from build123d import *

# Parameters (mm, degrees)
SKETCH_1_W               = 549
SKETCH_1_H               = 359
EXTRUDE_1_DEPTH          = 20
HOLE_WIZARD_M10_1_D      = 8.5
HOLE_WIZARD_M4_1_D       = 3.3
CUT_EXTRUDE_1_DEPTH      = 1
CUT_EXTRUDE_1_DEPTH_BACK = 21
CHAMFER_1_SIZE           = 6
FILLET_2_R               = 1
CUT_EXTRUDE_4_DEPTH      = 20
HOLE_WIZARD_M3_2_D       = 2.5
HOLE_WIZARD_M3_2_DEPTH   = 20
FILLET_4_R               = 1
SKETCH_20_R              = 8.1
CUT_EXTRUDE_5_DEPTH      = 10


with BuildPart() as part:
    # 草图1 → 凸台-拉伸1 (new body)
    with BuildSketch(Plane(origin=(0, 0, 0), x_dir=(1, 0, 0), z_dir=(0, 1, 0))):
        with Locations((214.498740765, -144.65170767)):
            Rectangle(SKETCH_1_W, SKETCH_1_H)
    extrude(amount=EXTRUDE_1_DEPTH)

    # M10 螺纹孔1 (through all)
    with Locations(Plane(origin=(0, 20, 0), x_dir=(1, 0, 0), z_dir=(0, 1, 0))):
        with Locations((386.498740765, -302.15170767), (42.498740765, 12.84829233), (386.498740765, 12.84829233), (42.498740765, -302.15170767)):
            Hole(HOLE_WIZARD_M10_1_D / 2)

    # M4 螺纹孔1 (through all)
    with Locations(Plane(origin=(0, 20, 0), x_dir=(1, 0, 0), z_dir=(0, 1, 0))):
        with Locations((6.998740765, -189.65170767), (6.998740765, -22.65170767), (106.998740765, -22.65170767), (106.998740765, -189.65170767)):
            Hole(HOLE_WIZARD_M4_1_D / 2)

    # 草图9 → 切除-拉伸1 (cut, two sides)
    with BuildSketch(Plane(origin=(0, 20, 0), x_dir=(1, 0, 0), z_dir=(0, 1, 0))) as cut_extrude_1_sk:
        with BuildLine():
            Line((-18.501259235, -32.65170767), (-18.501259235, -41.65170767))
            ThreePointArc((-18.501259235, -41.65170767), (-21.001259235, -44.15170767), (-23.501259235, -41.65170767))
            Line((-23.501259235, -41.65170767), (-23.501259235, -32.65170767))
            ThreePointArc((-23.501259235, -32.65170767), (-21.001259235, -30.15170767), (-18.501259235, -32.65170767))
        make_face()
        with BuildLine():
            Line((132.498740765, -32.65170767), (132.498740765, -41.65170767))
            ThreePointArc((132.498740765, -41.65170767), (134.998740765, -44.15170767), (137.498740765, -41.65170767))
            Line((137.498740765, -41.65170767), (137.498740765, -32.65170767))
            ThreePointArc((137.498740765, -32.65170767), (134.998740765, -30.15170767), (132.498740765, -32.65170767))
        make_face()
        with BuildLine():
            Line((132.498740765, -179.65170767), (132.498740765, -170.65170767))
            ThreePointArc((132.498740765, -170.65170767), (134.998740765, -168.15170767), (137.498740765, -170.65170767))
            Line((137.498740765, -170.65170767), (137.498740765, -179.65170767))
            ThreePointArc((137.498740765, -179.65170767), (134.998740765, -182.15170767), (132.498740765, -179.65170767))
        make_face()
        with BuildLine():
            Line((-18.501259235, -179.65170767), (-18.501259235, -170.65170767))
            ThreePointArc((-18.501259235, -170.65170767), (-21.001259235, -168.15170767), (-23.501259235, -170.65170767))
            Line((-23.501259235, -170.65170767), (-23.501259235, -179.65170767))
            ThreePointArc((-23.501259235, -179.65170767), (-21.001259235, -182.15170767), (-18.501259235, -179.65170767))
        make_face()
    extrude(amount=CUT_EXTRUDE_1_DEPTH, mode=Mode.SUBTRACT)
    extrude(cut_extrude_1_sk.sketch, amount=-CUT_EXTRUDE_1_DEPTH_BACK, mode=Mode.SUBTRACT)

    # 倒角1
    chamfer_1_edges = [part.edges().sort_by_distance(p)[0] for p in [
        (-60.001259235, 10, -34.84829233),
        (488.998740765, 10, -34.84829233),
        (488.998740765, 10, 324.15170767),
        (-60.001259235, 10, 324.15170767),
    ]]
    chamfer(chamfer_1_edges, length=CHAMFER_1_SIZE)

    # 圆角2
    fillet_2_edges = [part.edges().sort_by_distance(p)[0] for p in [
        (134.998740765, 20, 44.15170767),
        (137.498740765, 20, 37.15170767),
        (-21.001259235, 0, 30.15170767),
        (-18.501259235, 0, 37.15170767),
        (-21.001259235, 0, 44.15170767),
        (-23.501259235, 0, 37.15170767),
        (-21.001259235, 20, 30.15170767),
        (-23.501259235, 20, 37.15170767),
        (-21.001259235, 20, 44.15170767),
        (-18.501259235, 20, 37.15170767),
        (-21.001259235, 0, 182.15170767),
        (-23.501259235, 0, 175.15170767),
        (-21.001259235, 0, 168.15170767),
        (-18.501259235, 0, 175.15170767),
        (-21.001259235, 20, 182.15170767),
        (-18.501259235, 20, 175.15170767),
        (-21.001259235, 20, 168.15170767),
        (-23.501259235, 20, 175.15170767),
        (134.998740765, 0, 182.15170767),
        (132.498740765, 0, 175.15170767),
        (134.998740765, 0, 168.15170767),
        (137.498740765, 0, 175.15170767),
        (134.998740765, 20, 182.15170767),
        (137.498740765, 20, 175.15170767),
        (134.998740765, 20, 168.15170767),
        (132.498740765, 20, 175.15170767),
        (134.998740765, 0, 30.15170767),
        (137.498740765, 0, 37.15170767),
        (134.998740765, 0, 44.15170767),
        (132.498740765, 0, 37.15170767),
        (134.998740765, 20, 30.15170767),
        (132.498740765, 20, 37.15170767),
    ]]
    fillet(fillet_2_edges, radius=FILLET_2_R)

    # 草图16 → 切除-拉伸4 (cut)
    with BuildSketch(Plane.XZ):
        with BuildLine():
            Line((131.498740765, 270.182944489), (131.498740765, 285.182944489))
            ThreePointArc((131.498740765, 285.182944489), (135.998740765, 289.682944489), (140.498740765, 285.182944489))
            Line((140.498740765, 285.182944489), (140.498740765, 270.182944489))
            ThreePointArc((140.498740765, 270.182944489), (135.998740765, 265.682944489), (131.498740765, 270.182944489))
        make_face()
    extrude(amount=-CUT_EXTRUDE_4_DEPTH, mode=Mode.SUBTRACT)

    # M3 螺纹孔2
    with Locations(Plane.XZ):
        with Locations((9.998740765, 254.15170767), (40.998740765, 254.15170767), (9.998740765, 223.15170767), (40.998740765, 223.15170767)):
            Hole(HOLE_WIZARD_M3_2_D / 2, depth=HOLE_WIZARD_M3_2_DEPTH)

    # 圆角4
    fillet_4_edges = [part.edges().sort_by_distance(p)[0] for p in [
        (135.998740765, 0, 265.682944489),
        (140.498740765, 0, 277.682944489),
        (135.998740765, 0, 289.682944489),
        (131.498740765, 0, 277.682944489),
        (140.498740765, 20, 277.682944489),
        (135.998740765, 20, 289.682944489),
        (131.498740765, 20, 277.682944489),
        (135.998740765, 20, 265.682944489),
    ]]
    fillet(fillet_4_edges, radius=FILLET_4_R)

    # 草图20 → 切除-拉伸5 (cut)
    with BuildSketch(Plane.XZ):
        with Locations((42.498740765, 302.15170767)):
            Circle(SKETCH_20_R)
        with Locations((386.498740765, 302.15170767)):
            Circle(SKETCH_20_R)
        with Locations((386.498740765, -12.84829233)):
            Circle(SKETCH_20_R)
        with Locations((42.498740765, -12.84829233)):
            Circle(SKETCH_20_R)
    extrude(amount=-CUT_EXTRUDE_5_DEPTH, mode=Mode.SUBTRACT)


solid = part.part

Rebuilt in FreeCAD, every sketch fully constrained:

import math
import FreeCAD as App
import Part
import Sketcher

V = App.Vector


def edges_at(feature, points):
    """Names of the edges that pass closest to the given points."""
    edges = feature.Shape.Edges
    near = lambda p: min(range(len(edges)), key=lambda i: edges[i].distToShape(Part.Vertex(*p))[0])
    return sorted({f"Edge{near(p) + 1}" for p in points})

doc = App.newDocument("Part")
params = doc.addObject("Spreadsheet::Sheet", "Params")
for row, (alias, value) in enumerate([
    ("sketch1_width", "549 mm"),
    ("sketch1_height", "359 mm"),
    ("pad1_length", "20 mm"),
    ("sketch2_diameter", "8.5 mm"),
    ("hole_diameter", "8.5 mm"),
    ("sketch3_diameter", "3.3 mm"),
    ("hole2_diameter", "3.3 mm"),
    ("sketch4_radius", "2.5 mm"),
    ("sketch4_height", "9 mm"),
    ("chamfer_size", "6 mm"),
    ("fillet_radius", "1 mm"),
    ("sketch5_radius", "4.5 mm"),
    ("sketch5_height", "15 mm"),
    ("pocket2_length", "20 mm"),
    ("sketch6_diameter", "2.5 mm"),
    ("hole3_diameter", "2.5 mm"),
    ("hole3_depth", "20 mm"),
    ("fillet2_radius", "1 mm"),
    ("sketch7_diameter", "16.2 mm"),
    ("pocket3_length", "10 mm"),
], start=1):
    params.set(f"A{row}", alias)
    params.set(f"B{row}", "=" + value)
    params.setAlias(f"B{row}", alias)

body = doc.addObject("PartDesign::Body", "Body")

sketch1 = doc.addObject("Sketcher::SketchObject", "Sketch")
body.addObject(sketch1)
sketch1.AttachmentSupport = (doc.XZ_Plane, [""])
sketch1.MapMode = "FlatFace"
sketch1.addGeometry(Part.LineSegment(V(-60, -35, 0), V(-60, 324, 0)), False)
sketch1.addGeometry(Part.LineSegment(V(-60, 324, 0), V(489, 324, 0)), False)
sketch1.addGeometry(Part.LineSegment(V(489, 324, 0), V(489, -35, 0)), False)
sketch1.addGeometry(Part.LineSegment(V(489, -35, 0), V(-60, -35, 0)), False)
sketch1.addConstraint(Sketcher.Constraint("Coincident", 0, 2, 1, 1))
sketch1.addConstraint(Sketcher.Constraint("Coincident", 1, 2, 2, 1))
sketch1.addConstraint(Sketcher.Constraint("Coincident", 2, 2, 3, 1))
sketch1.addConstraint(Sketcher.Constraint("Coincident", 3, 2, 0, 1))
sketch1.addConstraint(Sketcher.Constraint("Vertical", 0))
sketch1.addConstraint(Sketcher.Constraint("Horizontal", 1))
sketch1.addConstraint(Sketcher.Constraint("Vertical", 2))
sketch1.addConstraint(Sketcher.Constraint("Horizontal", 3))
sketch1.addConstraint(Sketcher.Constraint("DistanceX", 1, 1, 1, 2, 549.0))
sketch1.addConstraint(Sketcher.Constraint("DistanceY", 0, 1, 0, 2, 359.0))
sketch1.addConstraint(Sketcher.Constraint("DistanceX", 0, 2, -1, 1, 60.001259))
sketch1.addConstraint(Sketcher.Constraint("DistanceY", -1, 1, 0, 2, 324.151708))
sketch1.setExpression("Constraints[8]", "Params.sketch1_width")
sketch1.setExpression("Constraints[9]", "Params.sketch1_height")
pad1 = doc.addObject("PartDesign::Pad", "Pad")
body.addObject(pad1)
pad1.Profile = sketch1
pad1.setExpression("Length", "Params.pad1_length")
pad1.Reversed = True

sketch2 = doc.addObject("Sketcher::SketchObject", "Sketch001")
body.addObject(sketch2)
sketch2.AttachmentSupport = (doc.XZ_Plane, [""])
sketch2.MapMode = "FlatFace"
sketch2.AttachmentOffset = App.Placement(V(0, 0, -20), App.Rotation())
sketch2.addGeometry(Part.Circle(V(386.5, 302.2, 0), V(0, 0, 1), 4.2), False)
sketch2.addGeometry(Part.Circle(V(42.5, -12.8, 0), V(0, 0, 1), 4.2), False)
sketch2.addGeometry(Part.Circle(V(386.5, -12.8, 0), V(0, 0, 1), 4.2), False)
sketch2.addGeometry(Part.Circle(V(42.5, 302.2, 0), V(0, 0, 1), 4.2), False)
sketch2.addConstraint(Sketcher.Constraint("Equal", 0, 1))
sketch2.addConstraint(Sketcher.Constraint("Equal", 1, 2))
sketch2.addConstraint(Sketcher.Constraint("Equal", 2, 3))
sketch2.addConstraint(Sketcher.Constraint("Horizontal", 1, 3, 2, 3))
sketch2.addConstraint(Sketcher.Constraint("Horizontal", 0, 3, 3, 3))
sketch2.addConstraint(Sketcher.Constraint("Vertical", 0, 3, 2, 3))
sketch2.addConstraint(Sketcher.Constraint("Vertical", 1, 3, 3, 3))
sketch2.addConstraint(Sketcher.Constraint("Diameter", 0, 8.5))
sketch2.addConstraint(Sketcher.Constraint("DistanceX", 1, 3, 0, 3, 344.0))
sketch2.addConstraint(Sketcher.Constraint("DistanceY", 1, 3, 0, 3, 315.0))
sketch2.addConstraint(Sketcher.Constraint("DistanceX", -1, 1, 0, 3, 386.498741))
sketch2.addConstraint(Sketcher.Constraint("DistanceY", -1, 1, 0, 3, 302.151708))
sketch2.setExpression("Constraints[7]", "Params.sketch2_diameter")
doc.recompute()
hole = doc.addObject("PartDesign::Hole", "Hole")
body.addObject(hole)
hole.Profile = sketch2
hole.ThreadType = "None"
hole.setExpression("Diameter", "Params.hole_diameter")
hole.DepthType = "ThroughAll"
hole.Reversed = True

sketch3 = doc.addObject("Sketcher::SketchObject", "Sketch002")
body.addObject(sketch3)
sketch3.AttachmentSupport = (doc.XZ_Plane, [""])
sketch3.MapMode = "FlatFace"
sketch3.AttachmentOffset = App.Placement(V(0, 0, -20), App.Rotation())
sketch3.addGeometry(Part.Circle(V(7, 189.7, 0), V(0, 0, 1), 1.6), False)
sketch3.addGeometry(Part.Circle(V(7, 22.7, 0), V(0, 0, 1), 1.6), False)
sketch3.addGeometry(Part.Circle(V(107, 22.7, 0), V(0, 0, 1), 1.6), False)
sketch3.addGeometry(Part.Circle(V(107, 189.7, 0), V(0, 0, 1), 1.6), False)
sketch3.addConstraint(Sketcher.Constraint("Equal", 0, 1))
sketch3.addConstraint(Sketcher.Constraint("Equal", 1, 2))
sketch3.addConstraint(Sketcher.Constraint("Equal", 2, 3))
sketch3.addConstraint(Sketcher.Constraint("Horizontal", 1, 3, 2, 3))
sketch3.addConstraint(Sketcher.Constraint("Horizontal", 0, 3, 3, 3))
sketch3.addConstraint(Sketcher.Constraint("Vertical", 0, 3, 1, 3))
sketch3.addConstraint(Sketcher.Constraint("Vertical", 2, 3, 3, 3))
sketch3.addConstraint(Sketcher.Constraint("Diameter", 0, 3.3))
sketch3.addConstraint(Sketcher.Constraint("DistanceY", 1, 3, 0, 3, 167.0))
sketch3.addConstraint(Sketcher.Constraint("DistanceX", 1, 3, 2, 3, 100.0))
sketch3.addConstraint(Sketcher.Constraint("DistanceX", -1, 1, 0, 3, 6.998741))
sketch3.addConstraint(Sketcher.Constraint("DistanceY", -1, 1, 0, 3, 189.651708))
sketch3.setExpression("Constraints[7]", "Params.sketch3_diameter")
doc.recompute()
hole2 = doc.addObject("PartDesign::Hole", "Hole001")
body.addObject(hole2)
hole2.Profile = sketch3
hole2.ThreadType = "None"
hole2.setExpression("Diameter", "Params.hole2_diameter")
hole2.DepthType = "ThroughAll"
hole2.Reversed = True

sketch4 = doc.addObject("Sketcher::SketchObject", "Sketch003")
body.addObject(sketch4)
sketch4.AttachmentSupport = (doc.XZ_Plane, [""])
sketch4.MapMode = "FlatFace"
sketch4.AttachmentOffset = App.Placement(V(0, 0, -20), App.Rotation())
sketch4.addGeometry(Part.LineSegment(V(-18.5, 41.7, 0), V(-18.5, 32.7, 0)), False)
sketch4.addGeometry(Part.ArcOfCircle(Part.Circle(V(-21, 32.7, 0), V(0, 0, 1), 2.5), math.radians(180), math.radians(360)), False)
sketch4.addGeometry(Part.LineSegment(V(-23.5, 32.7, 0), V(-23.5, 41.7, 0)), False)
sketch4.addGeometry(Part.ArcOfCircle(Part.Circle(V(-21, 41.7, 0), V(0, 0, 1), 2.5), math.radians(0), math.radians(180)), False)
sketch4.addGeometry(Part.LineSegment(V(132.5, 32.7, 0), V(132.5, 41.7, 0)), False)
sketch4.addGeometry(Part.ArcOfCircle(Part.Circle(V(135, 41.7, 0), V(0, 0, 1), 2.5), math.radians(0), math.radians(180)), False)
sketch4.addGeometry(Part.LineSegment(V(137.5, 41.7, 0), V(137.5, 32.7, 0)), False)
sketch4.addGeometry(Part.ArcOfCircle(Part.Circle(V(135, 32.7, 0), V(0, 0, 1), 2.5), math.radians(180), math.radians(360)), False)
sketch4.addGeometry(Part.LineSegment(V(132.5, 170.7, 0), V(132.5, 179.7, 0)), False)
sketch4.addGeometry(Part.ArcOfCircle(Part.Circle(V(135, 179.7, 0), V(0, 0, 1), 2.5), math.radians(0), math.radians(180)), False)
sketch4.addGeometry(Part.LineSegment(V(137.5, 179.7, 0), V(137.5, 170.7, 0)), False)
sketch4.addGeometry(Part.ArcOfCircle(Part.Circle(V(135, 170.7, 0), V(0, 0, 1), 2.5), math.radians(180), math.radians(360)), False)
sketch4.addGeometry(Part.LineSegment(V(-18.5, 179.7, 0), V(-18.5, 170.7, 0)), False)
sketch4.addGeometry(Part.ArcOfCircle(Part.Circle(V(-21, 170.7, 0), V(0, 0, 1), 2.5), math.radians(180), math.radians(360)), False)
sketch4.addGeometry(Part.LineSegment(V(-23.5, 170.7, 0), V(-23.5, 179.7, 0)), False)
sketch4.addGeometry(Part.ArcOfCircle(Part.Circle(V(-21, 179.7, 0), V(0, 0, 1), 2.5), math.radians(0), math.radians(180)), False)
sketch4.addConstraint(Sketcher.Constraint("Tangent", 0, 2, 1, 2))
sketch4.addConstraint(Sketcher.Constraint("Tangent", 1, 1, 2, 1))
sketch4.addConstraint(Sketcher.Constraint("Tangent", 2, 2, 3, 2))
sketch4.addConstraint(Sketcher.Constraint("Tangent", 3, 1, 0, 1))
sketch4.addConstraint(Sketcher.Constraint("Tangent", 4, 2, 5, 2))
sketch4.addConstraint(Sketcher.Constraint("Tangent", 5, 1, 6, 1))
sketch4.addConstraint(Sketcher.Constraint("Tangent", 6, 2, 7, 2))
sketch4.addConstraint(Sketcher.Constraint("Tangent", 7, 1, 4, 1))
sketch4.addConstraint(Sketcher.Constraint("Tangent", 8, 2, 9, 2))
sketch4.addConstraint(Sketcher.Constraint("Tangent", 9, 1, 10, 1))
sketch4.addConstraint(Sketcher.Constraint("Tangent", 10, 2, 11, 2))
sketch4.addConstraint(Sketcher.Constraint("Tangent", 11, 1, 8, 1))
sketch4.addConstraint(Sketcher.Constraint("Tangent", 12, 2, 13, 2))
sketch4.addConstraint(Sketcher.Constraint("Tangent", 13, 1, 14, 1))
sketch4.addConstraint(Sketcher.Constraint("Tangent", 14, 2, 15, 2))
sketch4.addConstraint(Sketcher.Constraint("Tangent", 15, 1, 12, 1))
sketch4.addConstraint(Sketcher.Constraint("Vertical", 0))
sketch4.addConstraint(Sketcher.Constraint("Vertical", 2))
sketch4.addConstraint(Sketcher.Constraint("Vertical", 4))
sketch4.addConstraint(Sketcher.Constraint("Vertical", 6))
sketch4.addConstraint(Sketcher.Constraint("Vertical", 8))
sketch4.addConstraint(Sketcher.Constraint("Vertical", 10))
sketch4.addConstraint(Sketcher.Constraint("Vertical", 12))
sketch4.addConstraint(Sketcher.Constraint("Vertical", 14))
sketch4.addConstraint(Sketcher.Constraint("Equal", 3, 5))
sketch4.addConstraint(Sketcher.Constraint("Equal", 7, 9))
sketch4.addConstraint(Sketcher.Constraint("Equal", 11, 13))
sketch4.addConstraint(Sketcher.Constraint("Horizontal", 3, 3, 5, 3))
sketch4.addConstraint(Sketcher.Constraint("Horizontal", 1, 3, 7, 3))
sketch4.addConstraint(Sketcher.Constraint("Horizontal", 11, 3, 13, 3))
sketch4.addConstraint(Sketcher.Constraint("Horizontal", 9, 3, 15, 3))
sketch4.addConstraint(Sketcher.Constraint("Vertical", 7, 3, 9, 3))
sketch4.addConstraint(Sketcher.Constraint("Vertical", 3, 3, 13, 3))
sketch4.addConstraint(Sketcher.Constraint("Equal", 6, 8))
sketch4.addConstraint(Sketcher.Constraint("Radius", 1, 2.5))
sketch4.addConstraint(Sketcher.Constraint("DistanceY", 0, 2, 0, 1, 9.0))
sketch4.addConstraint(Sketcher.Constraint("DistanceX", 3, 3, 5, 3, 156.0))
sketch4.addConstraint(Sketcher.Constraint("DistanceY", 5, 3, 9, 3, 138.0))
sketch4.addConstraint(Sketcher.Constraint("DistanceX", 1, 3, -1, 1, 21.001259))
sketch4.addConstraint(Sketcher.Constraint("DistanceY", -1, 1, 1, 3, 32.651708))
sketch4.setExpression("Constraints[34]", "Params.sketch4_radius")
sketch4.setExpression("Constraints[35]", "Params.sketch4_height")
pocket1 = doc.addObject("PartDesign::Pocket", "Pocket")
body.addObject(pocket1)
pocket1.Profile = sketch4
pocket1.Type = "ThroughAll"
pocket1.Midplane = True
doc.recompute()

chamfer = doc.addObject("PartDesign::Chamfer", "Chamfer")
body.addObject(chamfer)
chamfer.Base = (pocket1, edges_at(pocket1, [
    (-60.001, 10, -34.848),
    (488.999, 10, -34.848),
    (488.999, 10, 324.152),
    (-60.001, 10, 324.152),
]))
chamfer.setExpression("Size", "Params.chamfer_size")
doc.recompute()

fillet = doc.addObject("PartDesign::Fillet", "Fillet")
body.addObject(fillet)
fillet.Base = (chamfer, edges_at(chamfer, [
    (134.999, 20, 44.152),
    (137.499, 20, 37.152),
    (-21.001, 0, 30.152),
    (-18.501, 0, 37.152),
    (-21.001, 0, 44.152),
    (-23.501, 0, 37.152),
    (-21.001, 20, 30.152),
    (-23.501, 20, 37.152),
    (-21.001, 20, 44.152),
    (-18.501, 20, 37.152),
    (-21.001, 0, 182.152),
    (-23.501, 0, 175.152),
    (-21.001, 0, 168.152),
    (-18.501, 0, 175.152),
    (-21.001, 20, 182.152),
    (-18.501, 20, 175.152),
    (-21.001, 20, 168.152),
    (-23.501, 20, 175.152),
    (134.999, 0, 182.152),
    (132.499, 0, 175.152),
    (134.999, 0, 168.152),
    (137.499, 0, 175.152),
    (134.999, 20, 182.152),
    (137.499, 20, 175.152),
    (134.999, 20, 168.152),
    (132.499, 20, 175.152),
    (134.999, 0, 30.152),
    (137.499, 0, 37.152),
    (134.999, 0, 44.152),
    (132.499, 0, 37.152),
    (134.999, 20, 30.152),
    (132.499, 20, 37.152),
]))
fillet.setExpression("Radius", "Params.fillet_radius")

sketch5 = doc.addObject("Sketcher::SketchObject", "Sketch004")
body.addObject(sketch5)
sketch5.AttachmentSupport = (doc.XZ_Plane, [""])
sketch5.MapMode = "FlatFace"
sketch5.addGeometry(Part.LineSegment(V(131.5, 285.2, 0), V(131.5, 270.2, 0)), False)
sketch5.addGeometry(Part.ArcOfCircle(Part.Circle(V(136, 270.2, 0), V(0, 0, 1), 4.5), math.radians(180), math.radians(360)), False)
sketch5.addGeometry(Part.LineSegment(V(140.5, 270.2, 0), V(140.5, 285.2, 0)), False)
sketch5.addGeometry(Part.ArcOfCircle(Part.Circle(V(136, 285.2, 0), V(0, 0, 1), 4.5), math.radians(0), math.radians(180)), False)
sketch5.addConstraint(Sketcher.Constraint("Tangent", 0, 2, 1, 1))
sketch5.addConstraint(Sketcher.Constraint("Tangent", 1, 2, 2, 1))
sketch5.addConstraint(Sketcher.Constraint("Tangent", 2, 2, 3, 1))
sketch5.addConstraint(Sketcher.Constraint("Tangent", 3, 2, 0, 1))
sketch5.addConstraint(Sketcher.Constraint("Vertical", 0))
sketch5.addConstraint(Sketcher.Constraint("Vertical", 2))
sketch5.addConstraint(Sketcher.Constraint("Radius", 1, 4.5))
sketch5.addConstraint(Sketcher.Constraint("DistanceY", 0, 2, 0, 1, 15.0))
sketch5.addConstraint(Sketcher.Constraint("DistanceX", -1, 1, 1, 3, 135.998741))
sketch5.addConstraint(Sketcher.Constraint("DistanceY", -1, 1, 1, 3, 270.182944))
sketch5.setExpression("Constraints[6]", "Params.sketch5_radius")
sketch5.setExpression("Constraints[7]", "Params.sketch5_height")
pocket2 = doc.addObject("PartDesign::Pocket", "Pocket001")
body.addObject(pocket2)
pocket2.Profile = sketch5
pocket2.setExpression("Length", "Params.pocket2_length")

sketch6 = doc.addObject("Sketcher::SketchObject", "Sketch005")
body.addObject(sketch6)
sketch6.AttachmentSupport = (doc.XZ_Plane, [""])
sketch6.MapMode = "FlatFace"
sketch6.addGeometry(Part.Circle(V(10, 254.2, 0), V(0, 0, 1), 1.2), False)
sketch6.addGeometry(Part.Circle(V(41, 254.2, 0), V(0, 0, 1), 1.2), False)
sketch6.addGeometry(Part.Circle(V(10, 223.2, 0), V(0, 0, 1), 1.2), False)
sketch6.addGeometry(Part.Circle(V(41, 223.2, 0), V(0, 0, 1), 1.2), False)
sketch6.addConstraint(Sketcher.Constraint("Equal", 0, 1))
sketch6.addConstraint(Sketcher.Constraint("Equal", 1, 2))
sketch6.addConstraint(Sketcher.Constraint("Equal", 2, 3))
sketch6.addConstraint(Sketcher.Constraint("Horizontal", 0, 3, 1, 3))
sketch6.addConstraint(Sketcher.Constraint("Horizontal", 2, 3, 3, 3))
sketch6.addConstraint(Sketcher.Constraint("Vertical", 0, 3, 2, 3))
sketch6.addConstraint(Sketcher.Constraint("Vertical", 1, 3, 3, 3))
sketch6.addConstraint(Sketcher.Constraint("Diameter", 0, 2.5))
sketch6.addConstraint(Sketcher.Constraint("DistanceX", 0, 3, 1, 3, 31.0))
sketch6.addConstraint(Sketcher.Constraint("DistanceY", 2, 3, 0, 3, 31.0))
sketch6.addConstraint(Sketcher.Constraint("DistanceX", -1, 1, 0, 3, 9.998741))
sketch6.addConstraint(Sketcher.Constraint("DistanceY", -1, 1, 0, 3, 254.151708))
sketch6.setExpression("Constraints[7]", "Params.sketch6_diameter")
doc.recompute()
hole3 = doc.addObject("PartDesign::Hole", "Hole002")
body.addObject(hole3)
hole3.Profile = sketch6
hole3.ThreadType = "None"
hole3.setExpression("Diameter", "Params.hole3_diameter")
hole3.DepthType = "Dimension"
hole3.setExpression("Depth", "Params.hole3_depth")
hole3.DrillPoint = "Flat"
doc.recompute()

fillet2 = doc.addObject("PartDesign::Fillet", "Fillet001")
body.addObject(fillet2)
fillet2.Base = (hole3, edges_at(hole3, [
    (135.999, 0, 265.683),
    (140.499, 0, 277.683),
    (135.999, 0, 289.683),
    (131.499, 0, 277.683),
    (140.499, 20, 277.683),
    (135.999, 20, 289.683),
    (131.499, 20, 277.683),
    (135.999, 20, 265.683),
]))
fillet2.setExpression("Radius", "Params.fillet2_radius")

sketch7 = doc.addObject("Sketcher::SketchObject", "Sketch006")
body.addObject(sketch7)
sketch7.AttachmentSupport = (doc.XZ_Plane, [""])
sketch7.MapMode = "FlatFace"
sketch7.addGeometry(Part.Circle(V(42, 302, 0), V(0, 0, 1), 8), False)
sketch7.addGeometry(Part.Circle(V(386, 302, 0), V(0, 0, 1), 8), False)
sketch7.addGeometry(Part.Circle(V(386, -13, 0), V(0, 0, 1), 8), False)
sketch7.addGeometry(Part.Circle(V(42, -13, 0), V(0, 0, 1), 8), False)
sketch7.addConstraint(Sketcher.Constraint("Equal", 0, 1))
sketch7.addConstraint(Sketcher.Constraint("Equal", 1, 2))
sketch7.addConstraint(Sketcher.Constraint("Equal", 2, 3))
sketch7.addConstraint(Sketcher.Constraint("Horizontal", 0, 3, 1, 3))
sketch7.addConstraint(Sketcher.Constraint("Horizontal", 2, 3, 3, 3))
sketch7.addConstraint(Sketcher.Constraint("Vertical", 1, 3, 2, 3))
sketch7.addConstraint(Sketcher.Constraint("Vertical", 0, 3, 3, 3))
sketch7.addConstraint(Sketcher.Constraint("Diameter", 0, 16.2))
sketch7.addConstraint(Sketcher.Constraint("DistanceX", 0, 3, 1, 3, 344.0))
sketch7.addConstraint(Sketcher.Constraint("DistanceY", 2, 3, 1, 3, 315.0))
sketch7.addConstraint(Sketcher.Constraint("DistanceX", -1, 1, 0, 3, 42.498741))
sketch7.addConstraint(Sketcher.Constraint("DistanceY", -1, 1, 0, 3, 302.151708))
sketch7.setExpression("Constraints[7]", "Params.sketch7_diameter")
pocket3 = doc.addObject("PartDesign::Pocket", "Pocket002")
body.addObject(pocket3)
pocket3.Profile = sketch7
pocket3.setExpression("Length", "Params.pocket3_length")

doc.recompute()
